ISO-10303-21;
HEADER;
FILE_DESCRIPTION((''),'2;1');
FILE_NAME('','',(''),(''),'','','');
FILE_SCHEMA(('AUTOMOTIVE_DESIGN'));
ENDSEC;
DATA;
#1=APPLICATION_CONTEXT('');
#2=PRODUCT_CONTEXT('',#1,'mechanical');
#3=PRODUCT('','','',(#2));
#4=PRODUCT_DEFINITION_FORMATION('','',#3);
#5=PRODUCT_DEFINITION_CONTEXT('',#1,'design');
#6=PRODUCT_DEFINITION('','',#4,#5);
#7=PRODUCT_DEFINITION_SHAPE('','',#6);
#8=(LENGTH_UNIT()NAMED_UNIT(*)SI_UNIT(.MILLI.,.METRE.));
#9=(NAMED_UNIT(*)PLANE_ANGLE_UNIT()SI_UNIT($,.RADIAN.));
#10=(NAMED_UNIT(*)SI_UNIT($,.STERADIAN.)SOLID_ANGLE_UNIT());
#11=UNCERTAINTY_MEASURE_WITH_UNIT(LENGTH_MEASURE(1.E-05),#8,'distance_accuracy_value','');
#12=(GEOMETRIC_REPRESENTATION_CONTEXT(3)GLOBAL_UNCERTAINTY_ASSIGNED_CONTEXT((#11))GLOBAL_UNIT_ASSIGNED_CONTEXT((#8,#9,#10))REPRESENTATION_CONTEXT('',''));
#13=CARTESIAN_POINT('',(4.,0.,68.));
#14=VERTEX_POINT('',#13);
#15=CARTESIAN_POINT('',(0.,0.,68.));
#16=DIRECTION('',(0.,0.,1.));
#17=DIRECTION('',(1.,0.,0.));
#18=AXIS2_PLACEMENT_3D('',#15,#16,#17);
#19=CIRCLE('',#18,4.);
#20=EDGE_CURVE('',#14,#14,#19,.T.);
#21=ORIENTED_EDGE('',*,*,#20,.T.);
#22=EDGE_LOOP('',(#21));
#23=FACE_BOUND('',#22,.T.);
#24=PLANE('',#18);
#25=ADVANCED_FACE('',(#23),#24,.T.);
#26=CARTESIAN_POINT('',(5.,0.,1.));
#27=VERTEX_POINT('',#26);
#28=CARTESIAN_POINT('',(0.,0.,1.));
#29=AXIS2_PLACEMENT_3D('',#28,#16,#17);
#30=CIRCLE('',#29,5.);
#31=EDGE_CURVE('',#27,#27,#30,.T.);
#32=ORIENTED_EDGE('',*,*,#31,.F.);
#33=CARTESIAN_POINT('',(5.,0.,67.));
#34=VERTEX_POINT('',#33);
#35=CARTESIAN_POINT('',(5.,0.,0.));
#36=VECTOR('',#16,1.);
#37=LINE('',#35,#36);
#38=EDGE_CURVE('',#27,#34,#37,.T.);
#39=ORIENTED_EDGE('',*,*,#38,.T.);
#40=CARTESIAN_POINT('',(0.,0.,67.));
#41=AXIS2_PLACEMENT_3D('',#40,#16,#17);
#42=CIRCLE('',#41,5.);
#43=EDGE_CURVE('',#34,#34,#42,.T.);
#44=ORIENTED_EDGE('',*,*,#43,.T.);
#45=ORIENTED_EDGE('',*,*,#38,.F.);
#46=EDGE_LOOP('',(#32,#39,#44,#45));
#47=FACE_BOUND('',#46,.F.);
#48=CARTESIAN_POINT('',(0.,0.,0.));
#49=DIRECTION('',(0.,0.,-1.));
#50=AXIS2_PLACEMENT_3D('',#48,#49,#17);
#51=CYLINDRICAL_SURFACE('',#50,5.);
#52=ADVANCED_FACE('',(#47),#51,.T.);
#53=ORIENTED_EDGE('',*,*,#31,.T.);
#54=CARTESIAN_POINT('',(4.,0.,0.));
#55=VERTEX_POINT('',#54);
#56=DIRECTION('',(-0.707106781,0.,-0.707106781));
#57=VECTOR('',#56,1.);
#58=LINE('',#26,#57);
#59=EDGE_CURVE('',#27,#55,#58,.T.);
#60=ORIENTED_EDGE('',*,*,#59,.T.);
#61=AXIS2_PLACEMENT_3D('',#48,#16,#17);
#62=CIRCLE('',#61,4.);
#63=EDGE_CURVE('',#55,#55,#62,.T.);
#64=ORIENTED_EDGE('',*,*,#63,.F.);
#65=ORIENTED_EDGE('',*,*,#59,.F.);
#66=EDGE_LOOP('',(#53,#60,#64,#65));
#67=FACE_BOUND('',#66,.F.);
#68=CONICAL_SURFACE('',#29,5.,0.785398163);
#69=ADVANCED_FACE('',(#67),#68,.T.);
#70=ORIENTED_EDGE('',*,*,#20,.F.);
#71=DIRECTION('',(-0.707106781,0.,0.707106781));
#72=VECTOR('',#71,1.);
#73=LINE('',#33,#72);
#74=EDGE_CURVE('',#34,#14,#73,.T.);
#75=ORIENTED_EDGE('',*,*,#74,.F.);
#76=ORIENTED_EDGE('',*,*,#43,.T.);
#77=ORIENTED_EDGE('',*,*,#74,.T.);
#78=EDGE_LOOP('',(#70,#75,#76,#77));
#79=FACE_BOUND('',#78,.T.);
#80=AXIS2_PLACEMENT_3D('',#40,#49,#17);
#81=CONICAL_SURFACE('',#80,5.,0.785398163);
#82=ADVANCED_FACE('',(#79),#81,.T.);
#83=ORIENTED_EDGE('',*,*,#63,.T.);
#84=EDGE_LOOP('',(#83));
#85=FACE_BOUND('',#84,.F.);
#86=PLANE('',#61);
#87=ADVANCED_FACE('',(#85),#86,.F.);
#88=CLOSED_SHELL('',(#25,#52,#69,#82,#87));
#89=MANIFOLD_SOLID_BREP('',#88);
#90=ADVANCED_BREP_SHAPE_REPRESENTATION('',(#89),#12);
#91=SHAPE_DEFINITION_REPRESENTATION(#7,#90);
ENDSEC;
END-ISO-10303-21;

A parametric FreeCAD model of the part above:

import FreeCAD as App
import Part
import Sketcher

V = App.Vector


def edges_at(feature, points):
    """Names of the edges that pass closest to the given points."""
    edges = feature.Shape.Edges
    near = lambda p: min(range(len(edges)), key=lambda i: edges[i].distToShape(Part.Vertex(*p))[0])
    return sorted({f"Edge{near(p) + 1}" for p in points})

doc = App.newDocument("Part")
params = doc.addObject("Spreadsheet::Sheet", "Params")
for row, (alias, value) in enumerate([
    ("sketch1_diameter", "10 mm"),
    ("pad1_length", "68 mm"),
    ("chamfer_size", "1 mm"),
], start=1):
    params.set(f"A{row}", alias)
    params.set(f"B{row}", "=" + value)
    params.setAlias(f"B{row}", alias)

body = doc.addObject("PartDesign::Body", "Body")

sketch1 = doc.addObject("Sketcher::SketchObject", "Sketch")
body.addObject(sketch1)
sketch1.AttachmentSupport = (doc.XY_Plane, [""])
sketch1.MapMode = "FlatFace"
sketch1.addGeometry(Part.Circle(V(0, 0, 0), V(0, 0, 1), 5), False)
sketch1.addConstraint([
    Sketcher.Constraint("Coincident", 0, 3, -1, 1),
    Sketcher.Constraint("Diameter", 0, 10.0),
])
sketch1.setExpression("Constraints[1]", "Params.sketch1_diameter")
pad1 = doc.addObject("PartDesign::Pad", "Pad")
body.addObject(pad1)
pad1.Profile = sketch1
pad1.setExpression("Length", "Params.pad1_length")
doc.recompute()

chamfer = doc.addObject("PartDesign::Chamfer", "Chamfer")
body.addObject(chamfer)
chamfer.Base = (pad1, edges_at(pad1, [(-5, 0, 68), (-5, 0, 0)]))
chamfer.setExpression("Size", "Params.chamfer_size")

doc.recompute()
